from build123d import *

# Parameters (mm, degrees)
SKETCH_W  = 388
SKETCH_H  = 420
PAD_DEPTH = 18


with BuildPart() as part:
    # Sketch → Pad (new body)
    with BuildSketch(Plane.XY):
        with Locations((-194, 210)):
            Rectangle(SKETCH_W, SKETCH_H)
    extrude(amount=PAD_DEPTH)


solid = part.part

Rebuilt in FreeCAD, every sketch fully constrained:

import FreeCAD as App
import Part
import Sketcher
from FreeCAD import Vector
Q = App.Units.Quantity

doc = App.newDocument("Part")
params = doc.addObject("Spreadsheet::Sheet", "Params")
for row, (alias, value) in enumerate([
    ("sketch1_width", "388 mm"),
    ("sketch1_height", "420 mm"),
    ("pad1_length", "18 mm"),
], start=1):
    params.set(f"A{row}", alias)
    params.set(f"B{row}", "=" + value)
    params.setAlias(f"B{row}", alias)

body = doc.addObject("PartDesign::Body", "Body")

sketch1 = body.newObject("Sketcher::SketchObject", "Sketch")
sketch1.AttachmentSupport = (doc.getObject("XY_Plane"), [""])
sketch1.MapMode = "FlatFace"
sketch1.addGeometry([
    Part.LineSegment(Vector(-388, 420, 0), Vector(-388, 0, 0)),
    Part.LineSegment(Vector(-388, 0, 0), Vector(0, 0, 0)),
    Part.LineSegment(Vector(0, 0, 0), Vector(0, 420, 0)),
    Part.LineSegment(Vector(0, 420, 0), Vector(-388, 420, 0)),
], False)
sketch1.addConstraint([
    Sketcher.Constraint("Coincident", 0, 2, 1, 1),
    Sketcher.Constraint("Coincident", 1, 2, 2, 1),
    Sketcher.Constraint("Coincident", 2, 2, 3, 1),
    Sketcher.Constraint("Coincident", 3, 2, 0, 1),
    Sketcher.Constraint("Vertical", 0),
    Sketcher.Constraint("Horizontal", 1),
    Sketcher.Constraint("Vertical", 2),
    Sketcher.Constraint("Horizontal", 3),
    Sketcher.Constraint("Coincident", 1, 2, -1, 1),
    Sketcher.Constraint("DistanceX", 1, 1, 1, 2, Q("388 mm")),
    Sketcher.Constraint("DistanceY", 0, 2, 0, 1, Q("420 mm")),
])
sketch1.setExpression("Constraints[9]", "Params.sketch1_width")
sketch1.setExpression("Constraints[10]", "Params.sketch1_height")
pad1 = body.newObject("PartDesign::Pad", "Pad")
pad1.Profile = sketch1
pad1.setExpression("Length", "Params.pad1_length")

doc.recompute()
